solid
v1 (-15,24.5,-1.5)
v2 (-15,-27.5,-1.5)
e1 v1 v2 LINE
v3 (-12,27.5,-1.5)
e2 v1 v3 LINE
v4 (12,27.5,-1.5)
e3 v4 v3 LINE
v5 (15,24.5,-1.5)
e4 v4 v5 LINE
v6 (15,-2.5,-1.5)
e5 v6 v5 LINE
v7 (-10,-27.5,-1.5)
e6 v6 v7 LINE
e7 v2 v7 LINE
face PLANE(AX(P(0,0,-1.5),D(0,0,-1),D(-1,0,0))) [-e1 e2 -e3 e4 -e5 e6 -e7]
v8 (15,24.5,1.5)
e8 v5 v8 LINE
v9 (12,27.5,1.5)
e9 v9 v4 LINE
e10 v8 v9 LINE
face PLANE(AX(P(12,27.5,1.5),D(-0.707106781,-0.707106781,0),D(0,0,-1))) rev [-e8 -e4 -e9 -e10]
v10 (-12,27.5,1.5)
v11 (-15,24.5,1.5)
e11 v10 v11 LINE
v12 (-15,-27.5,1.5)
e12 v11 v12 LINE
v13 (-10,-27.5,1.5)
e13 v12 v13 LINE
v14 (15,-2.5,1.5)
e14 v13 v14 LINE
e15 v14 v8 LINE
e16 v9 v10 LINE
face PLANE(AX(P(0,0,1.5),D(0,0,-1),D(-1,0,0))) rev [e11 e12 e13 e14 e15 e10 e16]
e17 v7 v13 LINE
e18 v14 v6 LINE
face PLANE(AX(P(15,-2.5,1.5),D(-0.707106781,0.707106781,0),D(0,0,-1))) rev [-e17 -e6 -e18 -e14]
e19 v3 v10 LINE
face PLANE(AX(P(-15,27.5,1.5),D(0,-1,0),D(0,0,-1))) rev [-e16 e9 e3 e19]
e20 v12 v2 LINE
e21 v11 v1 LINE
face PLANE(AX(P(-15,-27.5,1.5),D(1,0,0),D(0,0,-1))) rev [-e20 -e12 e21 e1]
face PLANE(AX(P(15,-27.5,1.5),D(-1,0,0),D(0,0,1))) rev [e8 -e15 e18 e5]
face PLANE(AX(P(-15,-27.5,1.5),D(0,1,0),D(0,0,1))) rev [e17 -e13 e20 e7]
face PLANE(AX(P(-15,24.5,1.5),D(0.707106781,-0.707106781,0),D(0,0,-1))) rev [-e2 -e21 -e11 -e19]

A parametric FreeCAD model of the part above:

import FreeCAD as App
import Part
import Sketcher
from FreeCAD import Vector


def edges_at(feature, points):
    """Names of the edges that pass closest to the given points."""
    edges = feature.Shape.Edges
    near = lambda p: min(range(len(edges)), key=lambda i: edges[i].distToShape(Part.Vertex(*p))[0])
    return sorted({f"Edge{near(p) + 1}" for p in points})


def add_polygon(sketch, points):
    """Adds a closed chain of lines whose ends are joined by coincident constraints."""
    first, n = sketch.GeometryCount, len(points)
    for a, b in zip(points, points[1:] + points[:1]):
        sketch.addGeometry(Part.LineSegment(App.Vector(*a, 0), App.Vector(*b, 0)), False)
    for i in range(n):
        sketch.addConstraint(Sketcher.Constraint("Coincident", first + i, 2, first + (i + 1) % n, 1))

doc = App.newDocument("Part")
body = doc.addObject("PartDesign::Body", "Body")

# Sketch on XY plane
sketch1 = doc.addObject("Sketcher::SketchObject", "Sketch")
body.addObject(sketch1)
sketch1.AttachmentSupport = (doc.XY_Plane, [""])
sketch1.MapMode = "FlatFace"
add_polygon(sketch1, [(-15, 28), (-15, -28), (15, -28), (15, 28)])  # lines 0-3
sketch1.addConstraint(Sketcher.Constraint("Vertical", 0))
sketch1.addConstraint(Sketcher.Constraint("Horizontal", 1))
sketch1.addConstraint(Sketcher.Constraint("Vertical", 2))
sketch1.addConstraint(Sketcher.Constraint("Horizontal", 3))
sketch1.addConstraint(Sketcher.Constraint("Symmetric", 0, 2, 2, 2, -1, 1))
sketch1.addConstraint(Sketcher.Constraint("DistanceX", 1, 1, 1, 2, 30.0))
sketch1.addConstraint(Sketcher.Constraint("DistanceY", 0, 2, 0, 1, 55.0))
pad1 = doc.addObject("PartDesign::Pad", "Pad")
body.addObject(pad1)
pad1.Profile = sketch1
pad1.Length = 3
pad1.Midplane = True
doc.recompute()

chamfer = doc.addObject("PartDesign::Chamfer", "Chamfer")
body.addObject(chamfer)
chamfer.Base = (pad1, edges_at(pad1, [(-15, 27.5, 0), (15, 27.5, 0)]))
chamfer.Size = 3
doc.recompute()

chamfer2 = doc.addObject("PartDesign::Chamfer", "Chamfer001")
body.addObject(chamfer2)
chamfer2.Base = (chamfer, edges_at(chamfer, [(15, -27.5, 0)]))
chamfer2.Size = 25

doc.recompute()
